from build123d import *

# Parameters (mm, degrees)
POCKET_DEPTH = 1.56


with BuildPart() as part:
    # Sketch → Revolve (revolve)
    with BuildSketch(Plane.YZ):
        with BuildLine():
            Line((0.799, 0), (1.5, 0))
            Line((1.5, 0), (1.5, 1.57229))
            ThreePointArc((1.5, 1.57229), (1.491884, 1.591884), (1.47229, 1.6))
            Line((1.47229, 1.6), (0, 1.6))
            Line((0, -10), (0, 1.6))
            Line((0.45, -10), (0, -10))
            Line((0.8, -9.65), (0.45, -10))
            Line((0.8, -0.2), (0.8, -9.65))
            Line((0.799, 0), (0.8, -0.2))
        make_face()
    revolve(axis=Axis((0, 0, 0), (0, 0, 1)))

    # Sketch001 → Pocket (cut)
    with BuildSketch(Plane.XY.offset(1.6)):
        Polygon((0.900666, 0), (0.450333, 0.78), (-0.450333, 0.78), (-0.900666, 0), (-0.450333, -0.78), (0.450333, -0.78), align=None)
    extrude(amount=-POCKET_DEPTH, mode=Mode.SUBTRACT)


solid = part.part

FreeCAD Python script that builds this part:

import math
import FreeCAD as App
import Part
import Sketcher

V = App.Vector
Q = App.Units.Quantity

doc = App.newDocument("Part")
body = doc.addObject("PartDesign::Body", "Body")

# Sketch on YZ plane
sketch1 = body.newObject("Sketcher::SketchObject", "Sketch")
sketch1.AttachmentSupport = (doc.getObject("YZ_Plane"), [""])
sketch1.MapMode = "FlatFace"
sketch1.addGeometry([
    Part.LineSegment(V(0.799, 0, 0), V(1.5, 0, 0)),  # 0
    Part.LineSegment(V(1.5, 0, 0), V(1.5, 1.57229, 0)),  # 1
    Part.ArcOfCircle(Part.Circle(V(1.47229, 1.57229, 0), V(0, 0, 1), 0.02771), math.radians(-0.000502), math.radians(90.000502)),  # 2
    Part.LineSegment(V(1.47229, 1.6, 0), V(0, 1.6, 0)),  # 3
    Part.LineSegment(V(0, 1.6, 0), V(0, -10, 0)),  # 4
    Part.LineSegment(V(0, -10, 0), V(0.45, -10, 0)),  # 5
    Part.LineSegment(V(0.45, -10, 0), V(0.8, -9.65, 0)),  # 6
    Part.LineSegment(V(0.8, -9.65, 0), V(0.8, -0.2, 0)),  # 7
    Part.LineSegment(V(0.8, -0.2, 0), V(0.799, 0, 0)),  # 8
], False)
sketch1.addConstraint([
    Sketcher.Constraint("Coincident", 0, 2, 1, 1),
    Sketcher.Constraint("Coincident", 1, 2, 2, 1),
    Sketcher.Constraint("Coincident", 2, 2, 3, 1),
    Sketcher.Constraint("Coincident", 3, 2, 4, 1),
    Sketcher.Constraint("Coincident", 4, 2, 5, 1),
    Sketcher.Constraint("Coincident", 5, 2, 6, 1),
    Sketcher.Constraint("Coincident", 6, 2, 7, 1),
    Sketcher.Constraint("Coincident", 7, 2, 8, 1),
    Sketcher.Constraint("Coincident", 8, 2, 0, 1),
    Sketcher.Constraint("Horizontal", 0),
    Sketcher.Constraint("Vertical", 1),
    Sketcher.Constraint("Horizontal", 3),
    Sketcher.Constraint("Vertical", 4),
    Sketcher.Constraint("Horizontal", 5),
    Sketcher.Constraint("Vertical", 7),
    Sketcher.Constraint("PointOnObject", 0, 2, -1),
    Sketcher.Constraint("PointOnObject", 3, 2, -2),
    Sketcher.Constraint("Horizontal", 2, 3, 1, 2),
    Sketcher.Constraint("Angle", 6, Q("45 deg")),
    Sketcher.Constraint("DistanceY", 4, 2, 4, 1, 11.6),
    Sketcher.Constraint("DistanceY", 4, 2, -1, 1, 10.0),
    Sketcher.Constraint("DistanceX", 5, 1, 5, 2, 0.45),
    Sketcher.Constraint("DistanceY", 7, 1, 7, 2, 9.45),
    Sketcher.Constraint("DistanceX", -1, 1, 0, 2, 1.5),
    Sketcher.Constraint("DistanceX", -1, 1, 6, 2, 0.8),
    Sketcher.Constraint("DistanceX", 0, 1, 0, 2, 0.701),
    Sketcher.Constraint("Radius", 2, 0.02771),
    Sketcher.Constraint("DistanceX", 3, 2, 3, 1, 1.47229),
])
revolution = body.newObject("PartDesign::Revolution", "Revolution")
revolution.Profile = sketch1
revolution.ReferenceAxis = (sketch1, ["V_Axis"])
revolution.Angle = 360

# Sketch on XY plane
sketch2 = body.newObject("Sketcher::SketchObject", "Sketch001")
sketch2.AttachmentSupport = (doc.getObject("XY_Plane"), [""])
sketch2.MapMode = "FlatFace"
sketch2.AttachmentOffset = App.Placement(V(0, 0, 1.6), App.Rotation())
sketch2.addGeometry([
    Part.LineSegment(V(0.900666, 0, 0), V(0.450333, 0.78, 0)),  # 0
    Part.LineSegment(V(0.450333, 0.78, 0), V(-0.450333, 0.78, 0)),  # 1
    Part.LineSegment(V(-0.450333, 0.78, 0), V(-0.900666, 0, 0)),  # 2
    Part.LineSegment(V(-0.900666, 0, 0), V(-0.450333, -0.78, 0)),  # 3
    Part.LineSegment(V(-0.450333, -0.78, 0), V(0.450333, -0.78, 0)),  # 4
    Part.LineSegment(V(0.450333, -0.78, 0), V(0.900666, 0, 0)),  # 5
], False)
sketch2.addConstraint([
    Sketcher.Constraint("Coincident", 0, 2, 1, 1),
    Sketcher.Constraint("Coincident", 1, 2, 2, 1),
    Sketcher.Constraint("Coincident", 2, 2, 3, 1),
    Sketcher.Constraint("Coincident", 3, 2, 4, 1),
    Sketcher.Constraint("Coincident", 4, 2, 5, 1),
    Sketcher.Constraint("Coincident", 5, 2, 0, 1),
    Sketcher.Constraint("Horizontal", 1),
    Sketcher.Constraint("Horizontal", 4),
    Sketcher.Constraint("Symmetric", 0, 2, 3, 2, -1, 1),
    Sketcher.Constraint("Symmetric", 2, 2, 5, 2, -1, 1),
    Sketcher.Constraint("PointOnObject", 2, 2, -1),
    Sketcher.Constraint("Parallel", 2, 5),
    Sketcher.Constraint("Vertical", 1, 2, 3, 2),
    Sketcher.Constraint("Angle", 0, Q("119.999988 deg")),
    Sketcher.Constraint("DistanceY", -1, 1, 0, 2, 0.78),
    Sketcher.Constraint("DistanceX", 2, 2, 0, 2, 1.350999),
])
pocket1 = body.newObject("PartDesign::Pocket", "Pocket")
pocket1.Profile = sketch2
pocket1.Length = 1.56

doc.recompute()
